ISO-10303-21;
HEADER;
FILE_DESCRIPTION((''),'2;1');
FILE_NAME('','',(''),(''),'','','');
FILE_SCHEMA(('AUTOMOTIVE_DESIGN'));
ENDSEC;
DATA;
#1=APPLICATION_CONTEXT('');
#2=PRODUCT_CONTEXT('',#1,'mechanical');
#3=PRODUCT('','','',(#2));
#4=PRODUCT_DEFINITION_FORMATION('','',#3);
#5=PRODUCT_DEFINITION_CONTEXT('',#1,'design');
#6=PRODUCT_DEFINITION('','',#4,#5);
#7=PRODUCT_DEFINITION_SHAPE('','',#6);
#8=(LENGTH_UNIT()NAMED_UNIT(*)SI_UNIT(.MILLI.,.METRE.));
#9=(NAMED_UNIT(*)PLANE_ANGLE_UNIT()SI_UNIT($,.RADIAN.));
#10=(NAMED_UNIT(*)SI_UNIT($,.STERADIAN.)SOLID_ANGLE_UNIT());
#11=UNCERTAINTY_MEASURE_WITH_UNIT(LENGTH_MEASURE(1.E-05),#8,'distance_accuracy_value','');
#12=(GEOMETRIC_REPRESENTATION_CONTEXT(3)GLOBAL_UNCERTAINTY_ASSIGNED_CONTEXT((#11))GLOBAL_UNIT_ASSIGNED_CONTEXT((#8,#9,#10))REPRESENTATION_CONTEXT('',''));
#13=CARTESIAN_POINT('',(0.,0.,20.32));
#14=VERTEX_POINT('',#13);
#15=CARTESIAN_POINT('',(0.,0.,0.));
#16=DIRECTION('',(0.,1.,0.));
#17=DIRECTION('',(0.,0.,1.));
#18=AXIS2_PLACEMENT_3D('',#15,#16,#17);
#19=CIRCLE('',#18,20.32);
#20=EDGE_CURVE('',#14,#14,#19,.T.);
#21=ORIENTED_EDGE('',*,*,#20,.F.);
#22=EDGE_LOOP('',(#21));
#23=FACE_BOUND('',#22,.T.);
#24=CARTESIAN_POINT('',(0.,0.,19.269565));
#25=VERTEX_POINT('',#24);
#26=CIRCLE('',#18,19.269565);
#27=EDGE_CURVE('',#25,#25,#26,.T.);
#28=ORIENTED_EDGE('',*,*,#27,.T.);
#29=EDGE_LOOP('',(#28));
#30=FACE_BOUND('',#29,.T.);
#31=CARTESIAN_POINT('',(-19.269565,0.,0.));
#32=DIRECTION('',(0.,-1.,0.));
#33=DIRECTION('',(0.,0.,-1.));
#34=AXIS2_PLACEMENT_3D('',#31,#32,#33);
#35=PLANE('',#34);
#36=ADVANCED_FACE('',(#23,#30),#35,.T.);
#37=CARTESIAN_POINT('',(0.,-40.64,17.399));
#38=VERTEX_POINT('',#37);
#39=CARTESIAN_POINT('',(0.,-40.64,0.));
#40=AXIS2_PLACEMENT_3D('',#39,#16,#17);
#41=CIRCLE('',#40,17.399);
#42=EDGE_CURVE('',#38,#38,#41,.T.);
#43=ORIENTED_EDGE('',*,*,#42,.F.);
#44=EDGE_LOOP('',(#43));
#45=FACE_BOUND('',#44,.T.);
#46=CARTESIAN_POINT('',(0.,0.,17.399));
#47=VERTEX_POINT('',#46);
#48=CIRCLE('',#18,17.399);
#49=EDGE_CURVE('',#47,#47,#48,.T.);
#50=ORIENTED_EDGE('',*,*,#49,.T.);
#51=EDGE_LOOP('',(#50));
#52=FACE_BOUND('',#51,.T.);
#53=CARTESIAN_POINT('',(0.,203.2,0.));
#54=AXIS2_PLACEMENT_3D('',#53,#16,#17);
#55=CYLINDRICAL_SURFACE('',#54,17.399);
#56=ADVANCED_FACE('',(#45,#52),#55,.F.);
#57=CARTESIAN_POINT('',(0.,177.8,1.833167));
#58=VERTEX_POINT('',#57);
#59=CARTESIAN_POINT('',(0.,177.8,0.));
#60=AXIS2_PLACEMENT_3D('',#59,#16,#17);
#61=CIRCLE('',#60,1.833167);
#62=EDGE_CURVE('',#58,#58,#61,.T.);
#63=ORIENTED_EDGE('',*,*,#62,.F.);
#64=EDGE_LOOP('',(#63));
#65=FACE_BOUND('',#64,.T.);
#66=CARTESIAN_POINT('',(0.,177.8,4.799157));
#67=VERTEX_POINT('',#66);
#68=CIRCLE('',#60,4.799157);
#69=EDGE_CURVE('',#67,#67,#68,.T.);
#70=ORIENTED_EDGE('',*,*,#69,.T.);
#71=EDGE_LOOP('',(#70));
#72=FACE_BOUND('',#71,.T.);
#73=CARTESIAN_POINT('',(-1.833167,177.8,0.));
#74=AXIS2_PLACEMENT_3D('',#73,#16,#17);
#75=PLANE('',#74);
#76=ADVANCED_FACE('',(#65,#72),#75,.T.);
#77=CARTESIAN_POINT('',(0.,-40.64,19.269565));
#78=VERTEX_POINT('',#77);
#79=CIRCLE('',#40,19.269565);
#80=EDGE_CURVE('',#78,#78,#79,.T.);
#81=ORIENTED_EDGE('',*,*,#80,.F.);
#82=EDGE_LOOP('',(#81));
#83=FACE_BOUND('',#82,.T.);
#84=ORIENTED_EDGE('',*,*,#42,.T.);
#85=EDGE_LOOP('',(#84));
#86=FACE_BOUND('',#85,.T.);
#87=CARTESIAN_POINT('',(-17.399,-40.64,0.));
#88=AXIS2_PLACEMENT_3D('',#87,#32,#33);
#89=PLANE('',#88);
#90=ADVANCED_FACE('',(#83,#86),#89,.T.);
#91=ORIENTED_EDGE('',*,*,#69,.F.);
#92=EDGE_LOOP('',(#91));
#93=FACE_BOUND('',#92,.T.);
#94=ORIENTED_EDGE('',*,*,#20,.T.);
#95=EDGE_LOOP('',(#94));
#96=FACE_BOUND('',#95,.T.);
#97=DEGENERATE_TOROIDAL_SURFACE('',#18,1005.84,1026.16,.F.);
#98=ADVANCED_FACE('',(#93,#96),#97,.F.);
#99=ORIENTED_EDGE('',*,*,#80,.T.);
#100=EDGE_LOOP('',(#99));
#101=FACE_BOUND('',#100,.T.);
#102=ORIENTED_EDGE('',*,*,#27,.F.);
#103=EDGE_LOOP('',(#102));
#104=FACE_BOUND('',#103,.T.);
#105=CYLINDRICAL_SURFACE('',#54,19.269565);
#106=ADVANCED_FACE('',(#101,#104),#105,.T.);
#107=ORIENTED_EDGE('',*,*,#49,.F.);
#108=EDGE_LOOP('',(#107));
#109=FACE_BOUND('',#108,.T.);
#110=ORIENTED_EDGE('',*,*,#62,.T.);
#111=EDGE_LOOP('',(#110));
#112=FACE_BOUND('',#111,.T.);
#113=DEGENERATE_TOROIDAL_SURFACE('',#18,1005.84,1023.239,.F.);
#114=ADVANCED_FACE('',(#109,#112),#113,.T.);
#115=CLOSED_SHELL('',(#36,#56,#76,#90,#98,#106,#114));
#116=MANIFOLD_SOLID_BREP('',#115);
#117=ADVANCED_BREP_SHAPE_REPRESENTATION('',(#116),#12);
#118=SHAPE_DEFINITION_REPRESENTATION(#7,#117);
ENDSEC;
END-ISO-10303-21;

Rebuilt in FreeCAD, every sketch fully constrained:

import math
import FreeCAD as App
import Part
import Sketcher
from FreeCAD import Vector
Q = App.Units.Quantity

doc = App.newDocument("Part")
body = doc.addObject("PartDesign::Body", "Body")

sketch1 = doc.addObject("Sketcher::SketchObject", "Sketch")
body.addObject(sketch1)
sketch1.AttachmentSupport = (doc.XY_Plane, [""])
sketch1.MapMode = "FlatFace"
sketch1.addGeometry(Part.LineSegment(Vector(-17.399, -40.64, 0), Vector(-17.399, 0, 0)), False)
sketch1.addGeometry(Part.ArcOfCircle(Part.Circle(Vector(1005.84, 0, 0), Vector(0, 0, 1), 1023.239), math.radians(169.993381), math.radians(180)), False)
sketch1.addGeometry(Part.LineSegment(Vector(-1.833167, 177.8, 0), Vector(-4.799157, 177.8, 0)), False)
sketch1.addGeometry(Part.ArcOfCircle(Part.Circle(Vector(1005.84, 0, 0), Vector(0, 0, 1), 1026.16), math.radians(170.022157), math.radians(180)), False)
sketch1.addGeometry(Part.LineSegment(Vector(-20.32, 0, 0), Vector(-19.269565, 0, 0)), False)
sketch1.addGeometry(Part.LineSegment(Vector(-19.269565, 0, 0), Vector(-19.269565, -40.64, 0)), False)
sketch1.addGeometry(Part.LineSegment(Vector(-19.269565, -40.64, 0), Vector(-17.399, -40.64, 0)), False)
sketch1.addConstraint(Sketcher.Constraint("Tangent", 0, 2, 1, 2))
sketch1.addConstraint(Sketcher.Constraint("Coincident", 1, 1, 2, 1))
sketch1.addConstraint(Sketcher.Constraint("Coincident", 2, 2, 3, 1))
sketch1.addConstraint(Sketcher.Constraint("Coincident", 3, 2, 4, 1))
sketch1.addConstraint(Sketcher.Constraint("Coincident", 4, 2, 5, 1))
sketch1.addConstraint(Sketcher.Constraint("Coincident", 5, 2, 6, 1))
sketch1.addConstraint(Sketcher.Constraint("Coincident", 6, 2, 0, 1))
sketch1.addConstraint(Sketcher.Constraint("Vertical", 0))
sketch1.addConstraint(Sketcher.Constraint("Horizontal", 2))
sketch1.addConstraint(Sketcher.Constraint("Horizontal", 4))
sketch1.addConstraint(Sketcher.Constraint("Vertical", 5))
sketch1.addConstraint(Sketcher.Constraint("Horizontal", 6))
sketch1.addConstraint(Sketcher.Constraint("Coincident", 3, 3, 1, 3))
sketch1.addConstraint(Sketcher.Constraint("PointOnObject", 1, 3, -1))
sketch1.addConstraint(Sketcher.Constraint("PointOnObject", 4, 2, -1))
sketch1.addConstraint(Sketcher.Constraint("Radius", 3, Q("40.4 in")))
sketch1.addConstraint(Sketcher.Constraint("DistanceY", 0, 1, 0, 2, Q("1.6 in")))
sketch1.addConstraint(Sketcher.Constraint("DistanceY", -1, 1, 2, 2, Q("7 in")))
sketch1.addConstraint(Sketcher.Constraint("Radius", 1, Q("40.285 in")))
sketch1.addConstraint(Sketcher.Constraint("DistanceX", -1, 1, 1, 3, Q("39.6 in")))
sketch1.addConstraint(Sketcher.Constraint("DistanceX", 4, 2, 1, 1, 17.436398))
revolution = doc.addObject("PartDesign::Revolution", "Revolution")
body.addObject(revolution)
revolution.Profile = sketch1
revolution.ReferenceAxis = (sketch1, ["V_Axis"])
revolution.Angle = 360

doc.recompute()
